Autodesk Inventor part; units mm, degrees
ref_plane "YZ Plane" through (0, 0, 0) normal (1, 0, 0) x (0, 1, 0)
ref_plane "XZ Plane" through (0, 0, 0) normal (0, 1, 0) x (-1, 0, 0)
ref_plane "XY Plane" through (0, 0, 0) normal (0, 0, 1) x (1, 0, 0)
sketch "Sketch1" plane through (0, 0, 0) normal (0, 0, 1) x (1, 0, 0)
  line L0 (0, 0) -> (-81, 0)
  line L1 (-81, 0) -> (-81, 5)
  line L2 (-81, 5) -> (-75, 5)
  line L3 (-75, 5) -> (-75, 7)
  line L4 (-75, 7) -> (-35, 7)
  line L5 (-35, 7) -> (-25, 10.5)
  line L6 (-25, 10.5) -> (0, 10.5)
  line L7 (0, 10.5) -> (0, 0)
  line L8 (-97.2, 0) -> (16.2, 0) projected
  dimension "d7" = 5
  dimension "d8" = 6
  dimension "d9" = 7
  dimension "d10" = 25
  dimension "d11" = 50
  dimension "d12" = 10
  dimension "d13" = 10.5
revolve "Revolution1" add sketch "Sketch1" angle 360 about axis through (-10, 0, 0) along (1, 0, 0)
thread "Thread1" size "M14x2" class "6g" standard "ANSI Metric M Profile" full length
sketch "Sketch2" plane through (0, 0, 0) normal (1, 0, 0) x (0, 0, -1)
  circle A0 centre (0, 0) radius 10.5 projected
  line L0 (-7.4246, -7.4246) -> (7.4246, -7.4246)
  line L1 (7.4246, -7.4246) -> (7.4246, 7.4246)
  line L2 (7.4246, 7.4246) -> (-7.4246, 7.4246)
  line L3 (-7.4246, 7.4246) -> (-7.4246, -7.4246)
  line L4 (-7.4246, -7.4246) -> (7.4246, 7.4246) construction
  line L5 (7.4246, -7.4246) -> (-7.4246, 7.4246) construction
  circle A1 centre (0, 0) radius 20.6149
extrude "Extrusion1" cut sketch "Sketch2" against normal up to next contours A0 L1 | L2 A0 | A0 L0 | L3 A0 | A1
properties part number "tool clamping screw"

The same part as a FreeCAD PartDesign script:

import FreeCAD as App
import Part
import Sketcher

V = App.Vector

doc = App.newDocument("Part")
body = doc.addObject("PartDesign::Body", "Body")

sketch1 = body.newObject("Sketcher::SketchObject", "Sketch")
sketch1.AttachmentSupport = (doc.getObject("XY_Plane"), [""])
sketch1.MapMode = "FlatFace"
sketch1.addGeometry([
    Part.LineSegment(V(-81, 0, 0), V(0, 0, 0)),
    Part.LineSegment(V(0, 0, 0), V(0, 10.5, 0)),
    Part.LineSegment(V(0, 10.5, 0), V(-25, 10.5, 0)),
    Part.LineSegment(V(-25, 10.5, 0), V(-35, 7, 0)),
    Part.LineSegment(V(-35, 7, 0), V(-75, 7, 0)),
    Part.LineSegment(V(-75, 7, 0), V(-75, 5, 0)),
    Part.LineSegment(V(-75, 5, 0), V(-81, 5, 0)),
    Part.LineSegment(V(-81, 5, 0), V(-81, 0, 0)),
], False)
sketch1.addConstraint([
    Sketcher.Constraint("Coincident", 0, 2, 1, 1),
    Sketcher.Constraint("Coincident", 1, 2, 2, 1),
    Sketcher.Constraint("Coincident", 2, 2, 3, 1),
    Sketcher.Constraint("Coincident", 3, 2, 4, 1),
    Sketcher.Constraint("Coincident", 4, 2, 5, 1),
    Sketcher.Constraint("Coincident", 5, 2, 6, 1),
    Sketcher.Constraint("Coincident", 6, 2, 7, 1),
    Sketcher.Constraint("Coincident", 7, 2, 0, 1),
    Sketcher.Constraint("Horizontal", 0),
    Sketcher.Constraint("Vertical", 1),
    Sketcher.Constraint("Horizontal", 2),
    Sketcher.Constraint("Horizontal", 4),
    Sketcher.Constraint("Vertical", 5),
    Sketcher.Constraint("Horizontal", 6),
    Sketcher.Constraint("Vertical", 7),
    Sketcher.Constraint("Coincident", 0, 2, -1, 1),
    Sketcher.Constraint("DistanceX", 2, 2, 2, 1, 25.0),
    Sketcher.Constraint("DistanceX", 6, 2, 6, 1, 6.0),
    Sketcher.Constraint("DistanceY", 7, 2, 7, 1, 5.0),
    Sketcher.Constraint("DistanceY", 1, 1, 1, 2, 10.5),
    Sketcher.Constraint("DistanceY", -1, 1, 3, 2, 7.0),
    Sketcher.Constraint("DistanceX", 3, 2, 2, 2, 10.0),
    Sketcher.Constraint("DistanceX", 4, 2, 2, 2, 50.0),
])
revolution = body.newObject("PartDesign::Revolution", "Revolution")
revolution.Profile = sketch1
revolution.ReferenceAxis = (sketch1, ["H_Axis"])
revolution.Angle = 360

sketch2 = body.newObject("Sketcher::SketchObject", "Sketch001")
sketch2.AttachmentSupport = (doc.getObject("YZ_Plane"), [""])
sketch2.MapMode = "FlatFace"
sketch2.addGeometry([
    Part.Circle(V(0, 0, 0), V(0, 0, 1), 21),
    Part.LineSegment(V(7, -7, 0), V(-7, -7, 0)),
    Part.LineSegment(V(-7, -7, 0), V(-7, 7, 0)),
    Part.LineSegment(V(-7, 7, 0), V(7, 7, 0)),
    Part.LineSegment(V(7, 7, 0), V(7, -7, 0)),
], False)
sketch2.addConstraint([
    Sketcher.Constraint("Coincident", 1, 2, 2, 1),
    Sketcher.Constraint("Coincident", 2, 2, 3, 1),
    Sketcher.Constraint("Coincident", 3, 2, 4, 1),
    Sketcher.Constraint("Coincident", 4, 2, 1, 1),
    Sketcher.Constraint("Horizontal", 1),
    Sketcher.Constraint("Vertical", 2),
    Sketcher.Constraint("Horizontal", 3),
    Sketcher.Constraint("Vertical", 4),
    Sketcher.Constraint("Coincident", 0, 3, -1, 1),
    Sketcher.Constraint("Symmetric", 1, 2, 3, 2, -1, 1),
    Sketcher.Constraint("Equal", 3, 2),
    Sketcher.Constraint("Diameter", 0, 41.2298),
    Sketcher.Constraint("DistanceX", 1, 2, 1, 1, 14.8492),
])
pocket1 = body.newObject("PartDesign::Pocket", "Pocket")
pocket1.Profile = sketch2
pocket1.Type = "UpToFirst"

doc.recompute()
